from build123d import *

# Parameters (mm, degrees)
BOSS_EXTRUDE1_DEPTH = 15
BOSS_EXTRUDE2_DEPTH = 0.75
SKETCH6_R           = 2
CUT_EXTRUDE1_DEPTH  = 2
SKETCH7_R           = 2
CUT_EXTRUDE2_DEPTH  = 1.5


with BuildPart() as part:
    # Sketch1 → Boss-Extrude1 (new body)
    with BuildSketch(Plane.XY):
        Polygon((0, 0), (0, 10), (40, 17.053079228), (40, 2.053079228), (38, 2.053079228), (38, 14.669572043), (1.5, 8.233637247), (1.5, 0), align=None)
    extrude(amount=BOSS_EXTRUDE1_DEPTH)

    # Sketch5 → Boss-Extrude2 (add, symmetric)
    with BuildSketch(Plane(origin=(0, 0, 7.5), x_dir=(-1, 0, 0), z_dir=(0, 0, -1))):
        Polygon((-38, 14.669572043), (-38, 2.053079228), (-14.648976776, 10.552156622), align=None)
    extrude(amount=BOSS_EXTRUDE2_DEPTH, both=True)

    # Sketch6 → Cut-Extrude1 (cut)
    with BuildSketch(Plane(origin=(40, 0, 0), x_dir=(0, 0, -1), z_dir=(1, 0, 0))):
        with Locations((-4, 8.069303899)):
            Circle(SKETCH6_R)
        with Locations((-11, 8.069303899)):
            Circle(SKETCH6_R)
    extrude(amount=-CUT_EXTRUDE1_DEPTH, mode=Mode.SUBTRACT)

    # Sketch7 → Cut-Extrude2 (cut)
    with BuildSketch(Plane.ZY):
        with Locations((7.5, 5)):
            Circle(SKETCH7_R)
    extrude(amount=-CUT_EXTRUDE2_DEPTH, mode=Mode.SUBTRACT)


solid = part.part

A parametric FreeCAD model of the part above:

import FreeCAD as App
import Part
import Sketcher
from FreeCAD import Vector
Q = App.Units.Quantity


def add_polygon(sketch, points):
    """Adds a closed chain of lines whose ends are joined by coincident constraints."""
    first, n = sketch.GeometryCount, len(points)
    for a, b in zip(points, points[1:] + points[:1]):
        sketch.addGeometry(Part.LineSegment(App.Vector(*a, 0), App.Vector(*b, 0)), False)
    for i in range(n):
        sketch.addConstraint(Sketcher.Constraint("Coincident", first + i, 2, first + (i + 1) % n, 1))

doc = App.newDocument("Part")
body = doc.addObject("PartDesign::Body", "Body")

# Sketch on XY plane
sketch1 = doc.addObject("Sketcher::SketchObject", "Sketch")
body.addObject(sketch1)
sketch1.AttachmentSupport = (doc.XY_Plane, [""])
sketch1.MapMode = "FlatFace"
add_polygon(sketch1, [(0, 10), (0, 0), (1.5, 0), (1.5, 8.2), (38, 14.7), (38, 2.1), (40, 2.1), (40, 17.1)])  # lines 0-7
sketch1.addConstraint(Sketcher.Constraint("Vertical", 0))
sketch1.addConstraint(Sketcher.Constraint("Horizontal", 1))
sketch1.addConstraint(Sketcher.Constraint("Vertical", 2))
sketch1.addConstraint(Sketcher.Constraint("Vertical", 4))
sketch1.addConstraint(Sketcher.Constraint("Horizontal", 5))
sketch1.addConstraint(Sketcher.Constraint("Vertical", 6))
sketch1.addConstraint(Sketcher.Constraint("Coincident", 0, 2, -1, 1))
sketch1.addConstraint(Sketcher.Constraint("Parallel", 3, 7))
sketch1.addConstraint(Sketcher.Constraint("DistanceX", 5, 1, 5, 2, Q("2 mm")))
sketch1.addConstraint(Sketcher.Constraint("DistanceY", 0, 2, 0, 1, Q("10 mm")))
sketch1.addConstraint(Sketcher.Constraint("DistanceY", 6, 1, 6, 2, Q("15 mm")))
sketch1.addConstraint(Sketcher.Constraint("Angle", 3, Q("10 deg")))
sketch1.addConstraint(Sketcher.Constraint("DistanceX", 1, 1, 1, 2, Q("1.5 mm")))
sketch1.addConstraint(Sketcher.Constraint("DistanceX", -1, 1, 3, 2, Q("38 mm")))
sketch1.addConstraint(Sketcher.Constraint("DistanceY", 2, 1, 2, 2, Q("8.233637 mm")))
pad1 = doc.addObject("PartDesign::Pad", "Pad")
body.addObject(pad1)
pad1.Profile = sketch1
pad1.Length = 15

# Sketch on XY plane
sketch2 = doc.addObject("Sketcher::SketchObject", "Sketch001")
body.addObject(sketch2)
sketch2.AttachmentSupport = (doc.XY_Plane, [""])
sketch2.MapMode = "FlatFace"
sketch2.AttachmentOffset = App.Placement(Vector(0, 0, 7.5), App.Rotation())
add_polygon(sketch2, [(38, 15), (38, 2), (15, 11)])  # lines 0-2
sketch2.addConstraint(Sketcher.Constraint("Vertical", 0))
sketch2.addConstraint(Sketcher.Constraint("Angle", 1, Q("160 deg")))
sketch2.addConstraint(Sketcher.Constraint("Angle", 2, Q("10 deg")))
sketch2.addConstraint(Sketcher.Constraint("DistanceX", -1, 1, 0, 2, Q("38 mm")))
sketch2.addConstraint(Sketcher.Constraint("Distance", 1, Q("24.84964 mm")))
sketch2.addConstraint(Sketcher.Constraint("DistanceY", -1, 1, 0, 2, Q("2.053079 mm")))
pad2 = doc.addObject("PartDesign::Pad", "Pad001")
body.addObject(pad2)
pad2.Profile = sketch2
pad2.Length = 1.5
pad2.Midplane = True

# Sketch on YZ plane
sketch3 = doc.addObject("Sketcher::SketchObject", "Sketch002")
body.addObject(sketch3)
sketch3.AttachmentSupport = (doc.YZ_Plane, [""])
sketch3.MapMode = "FlatFace"
sketch3.AttachmentOffset = App.Placement(Vector(0, 0, 40), App.Rotation())
sketch3.addGeometry(Part.Circle(Vector(8.1, 4, 0), Vector(0, 0, 1), 2), False)
sketch3.addGeometry(Part.Circle(Vector(8.1, 11, 0), Vector(0, 0, 1), 2), False)
sketch3.addConstraint(Sketcher.Constraint("Equal", 0, 1))
sketch3.addConstraint(Sketcher.Constraint("Vertical", 0, 3, 1, 3))
sketch3.addConstraint(Sketcher.Constraint("Diameter", 0, Q("4 mm")))
sketch3.addConstraint(Sketcher.Constraint("DistanceY", -1, 1, 0, 3, Q("4 mm")))
sketch3.addConstraint(Sketcher.Constraint("DistanceY", -1, 1, 1, 3, Q("11 mm")))
sketch3.addConstraint(Sketcher.Constraint("DistanceX", -1, 1, 0, 3, Q("8.069304 mm")))
pocket1 = doc.addObject("PartDesign::Pocket", "Pocket")
body.addObject(pocket1)
pocket1.Profile = sketch3
pocket1.Length = 2

# Sketch on YZ plane
sketch4 = doc.addObject("Sketcher::SketchObject", "Sketch003")
body.addObject(sketch4)
sketch4.AttachmentSupport = (doc.YZ_Plane, [""])
sketch4.MapMode = "FlatFace"
sketch4.addGeometry(Part.Circle(Vector(5, 7.5, 0), Vector(0, 0, 1), 2), False)
sketch4.addConstraint(Sketcher.Constraint("Diameter", 0, Q("4 mm")))
sketch4.addConstraint(Sketcher.Constraint("DistanceX", -1, 1, 0, 3, Q("5 mm")))
sketch4.addConstraint(Sketcher.Constraint("DistanceY", -1, 1, 0, 3, Q("7.5 mm")))
pocket2 = doc.addObject("PartDesign::Pocket", "Pocket001")
body.addObject(pocket2)
pocket2.Profile = sketch4
pocket2.Length = 1.5
pocket2.Reversed = True

doc.recompute()
